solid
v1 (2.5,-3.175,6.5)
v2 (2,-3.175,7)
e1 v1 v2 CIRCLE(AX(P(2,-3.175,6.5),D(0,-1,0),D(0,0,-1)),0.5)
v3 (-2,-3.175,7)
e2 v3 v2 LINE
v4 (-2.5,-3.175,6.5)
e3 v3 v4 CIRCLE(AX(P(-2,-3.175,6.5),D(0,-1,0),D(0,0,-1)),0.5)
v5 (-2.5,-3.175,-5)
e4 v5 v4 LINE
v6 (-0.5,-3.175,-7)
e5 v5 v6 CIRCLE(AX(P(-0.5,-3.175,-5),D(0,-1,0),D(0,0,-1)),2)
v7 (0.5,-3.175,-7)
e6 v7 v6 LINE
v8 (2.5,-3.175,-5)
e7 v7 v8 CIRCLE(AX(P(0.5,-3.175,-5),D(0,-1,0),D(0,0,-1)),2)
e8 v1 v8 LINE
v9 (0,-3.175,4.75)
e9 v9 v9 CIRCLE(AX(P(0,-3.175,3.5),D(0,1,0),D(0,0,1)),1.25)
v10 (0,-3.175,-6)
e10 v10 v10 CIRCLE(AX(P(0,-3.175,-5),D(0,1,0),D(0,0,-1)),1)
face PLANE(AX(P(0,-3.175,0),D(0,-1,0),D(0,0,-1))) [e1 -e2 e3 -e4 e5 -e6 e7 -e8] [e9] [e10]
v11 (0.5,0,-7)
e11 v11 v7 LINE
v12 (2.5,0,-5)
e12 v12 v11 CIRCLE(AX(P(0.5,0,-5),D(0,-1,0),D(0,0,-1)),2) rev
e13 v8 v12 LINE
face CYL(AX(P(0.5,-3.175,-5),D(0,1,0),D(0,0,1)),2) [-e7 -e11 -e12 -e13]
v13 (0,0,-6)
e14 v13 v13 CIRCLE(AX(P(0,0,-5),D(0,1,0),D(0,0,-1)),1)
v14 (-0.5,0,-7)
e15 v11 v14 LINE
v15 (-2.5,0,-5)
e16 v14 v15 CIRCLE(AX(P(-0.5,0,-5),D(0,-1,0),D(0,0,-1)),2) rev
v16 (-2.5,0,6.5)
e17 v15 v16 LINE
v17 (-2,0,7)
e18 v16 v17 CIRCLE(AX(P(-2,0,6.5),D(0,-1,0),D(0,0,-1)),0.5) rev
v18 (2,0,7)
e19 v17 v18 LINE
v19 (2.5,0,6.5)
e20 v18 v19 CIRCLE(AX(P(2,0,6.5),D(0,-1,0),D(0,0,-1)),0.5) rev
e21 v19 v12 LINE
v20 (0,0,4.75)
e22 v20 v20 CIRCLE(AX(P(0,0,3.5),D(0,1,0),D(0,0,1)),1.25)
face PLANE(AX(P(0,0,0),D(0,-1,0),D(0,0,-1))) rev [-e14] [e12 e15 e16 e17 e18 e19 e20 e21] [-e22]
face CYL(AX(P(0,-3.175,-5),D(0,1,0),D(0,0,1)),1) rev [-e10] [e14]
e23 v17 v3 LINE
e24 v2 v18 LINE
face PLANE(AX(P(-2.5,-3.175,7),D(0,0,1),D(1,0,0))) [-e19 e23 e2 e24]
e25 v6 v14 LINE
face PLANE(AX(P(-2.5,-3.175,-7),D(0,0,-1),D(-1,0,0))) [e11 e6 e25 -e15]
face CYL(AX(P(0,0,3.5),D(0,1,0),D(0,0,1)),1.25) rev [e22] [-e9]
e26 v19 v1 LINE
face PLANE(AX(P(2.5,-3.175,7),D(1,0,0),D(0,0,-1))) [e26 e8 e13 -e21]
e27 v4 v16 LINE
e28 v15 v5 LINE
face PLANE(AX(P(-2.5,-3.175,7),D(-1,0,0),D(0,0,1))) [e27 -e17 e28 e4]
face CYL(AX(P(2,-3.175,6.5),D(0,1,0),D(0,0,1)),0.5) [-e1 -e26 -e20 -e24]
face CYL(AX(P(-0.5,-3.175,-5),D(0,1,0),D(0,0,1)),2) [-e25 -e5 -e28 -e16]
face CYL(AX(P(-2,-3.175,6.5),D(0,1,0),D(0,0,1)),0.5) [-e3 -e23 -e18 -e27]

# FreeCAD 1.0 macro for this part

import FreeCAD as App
import Part
import Sketcher
from FreeCAD import Vector


def edges_at(feature, points):
    """Names of the edges that pass closest to the given points."""
    edges = feature.Shape.Edges
    near = lambda p: min(range(len(edges)), key=lambda i: edges[i].distToShape(Part.Vertex(*p))[0])
    return sorted({f"Edge{near(p) + 1}" for p in points})


def add_polygon(sketch, points):
    """Adds a closed chain of lines whose ends are joined by coincident constraints."""
    first, n = sketch.GeometryCount, len(points)
    for a, b in zip(points, points[1:] + points[:1]):
        sketch.addGeometry(Part.LineSegment(App.Vector(*a, 0), App.Vector(*b, 0)), False)
    for i in range(n):
        sketch.addConstraint(Sketcher.Constraint("Coincident", first + i, 2, first + (i + 1) % n, 1))

doc = App.newDocument("Part")
params = doc.addObject("Spreadsheet::Sheet", "Params")
for row, (alias, value) in enumerate([
    ("sketch1_diameter", "2 mm"),
    ("sketch1_width", "5 mm"),
    ("sketch1_height", "14 mm"),
    ("pad1_length", "3.175 mm"),
    ("sketch2_diameter", "2.5 mm"),
    ("hole_diameter", "2.5 mm"),
    ("fillet_radius", "2 mm"),
    ("fillet2_radius", "0.5 mm"),
], start=1):
    params.set(f"A{row}", alias)
    params.set(f"B{row}", "=" + value)
    params.setAlias(f"B{row}", alias)

body = doc.addObject("PartDesign::Body", "Body")

sketch1 = body.newObject("Sketcher::SketchObject", "Sketch")
sketch1.AttachmentSupport = (doc.getObject("XZ_Plane"), [""])
sketch1.MapMode = "FlatFace"
add_polygon(sketch1, [(-2.5, -7), (-2.5, 7), (2.5, 7), (2.5, -7)])
sketch1.addGeometry(Part.Circle(Vector(0, -5, 0), Vector(0, 0, 1), 1), False)
sketch1.addConstraint(Sketcher.Constraint("Vertical", 0))
sketch1.addConstraint(Sketcher.Constraint("Horizontal", 1))
sketch1.addConstraint(Sketcher.Constraint("Vertical", 2))
sketch1.addConstraint(Sketcher.Constraint("Horizontal", 3))
sketch1.addConstraint(Sketcher.Constraint("Symmetric", 0, 2, 2, 2, -1, 1))
sketch1.addConstraint(Sketcher.Constraint("PointOnObject", 4, 3, -2))
sketch1.addConstraint(Sketcher.Constraint("Diameter", 4, 2.0))
sketch1.addConstraint(Sketcher.Constraint("DistanceX", 1, 1, 1, 2, 5.0))
sketch1.addConstraint(Sketcher.Constraint("DistanceY", 0, 1, 0, 2, 14.0))
sketch1.addConstraint(Sketcher.Constraint("DistanceY", 4, 3, -1, 1, 5.0))
sketch1.setExpression("Constraints[10]", "Params.sketch1_diameter")
sketch1.setExpression("Constraints[11]", "Params.sketch1_width")
sketch1.setExpression("Constraints[12]", "Params.sketch1_height")
pad1 = body.newObject("PartDesign::Pad", "Pad")
pad1.Profile = sketch1
pad1.setExpression("Length", "Params.pad1_length")

sketch2 = body.newObject("Sketcher::SketchObject", "Sketch001")
sketch2.AttachmentSupport = (doc.getObject("XZ_Plane"), [""])
sketch2.MapMode = "FlatFace"
sketch2.addGeometry(Part.Circle(Vector(0, 3.5, 0), Vector(0, 0, 1), 1.2), False)
sketch2.addConstraint(Sketcher.Constraint("PointOnObject", 0, 3, -2))
sketch2.addConstraint(Sketcher.Constraint("Diameter", 0, 2.5))
sketch2.addConstraint(Sketcher.Constraint("DistanceY", -1, 1, 0, 3, 3.5))
sketch2.setExpression("Constraints[1]", "Params.sketch2_diameter")
doc.recompute()
hole = body.newObject("PartDesign::Hole", "Hole")
hole.Profile = sketch2
hole.ThreadType = "None"
hole.setExpression("Diameter", "Params.hole_diameter")
hole.DepthType = "ThroughAll"
hole.Reversed = True
doc.recompute()

fillet = body.newObject("PartDesign::Fillet", "Fillet")
fillet.Base = (hole, edges_at(hole, [(-2.5, -1.587, -7), (2.5, -1.587, -7)]))
fillet.setExpression("Radius", "Params.fillet_radius")
doc.recompute()

fillet2 = body.newObject("PartDesign::Fillet", "Fillet001")
fillet2.Base = (fillet, edges_at(fillet, [(2.5, -1.587, 7), (-2.5, -1.587, 7)]))
fillet2.setExpression("Radius", "Params.fillet2_radius")

doc.recompute()
